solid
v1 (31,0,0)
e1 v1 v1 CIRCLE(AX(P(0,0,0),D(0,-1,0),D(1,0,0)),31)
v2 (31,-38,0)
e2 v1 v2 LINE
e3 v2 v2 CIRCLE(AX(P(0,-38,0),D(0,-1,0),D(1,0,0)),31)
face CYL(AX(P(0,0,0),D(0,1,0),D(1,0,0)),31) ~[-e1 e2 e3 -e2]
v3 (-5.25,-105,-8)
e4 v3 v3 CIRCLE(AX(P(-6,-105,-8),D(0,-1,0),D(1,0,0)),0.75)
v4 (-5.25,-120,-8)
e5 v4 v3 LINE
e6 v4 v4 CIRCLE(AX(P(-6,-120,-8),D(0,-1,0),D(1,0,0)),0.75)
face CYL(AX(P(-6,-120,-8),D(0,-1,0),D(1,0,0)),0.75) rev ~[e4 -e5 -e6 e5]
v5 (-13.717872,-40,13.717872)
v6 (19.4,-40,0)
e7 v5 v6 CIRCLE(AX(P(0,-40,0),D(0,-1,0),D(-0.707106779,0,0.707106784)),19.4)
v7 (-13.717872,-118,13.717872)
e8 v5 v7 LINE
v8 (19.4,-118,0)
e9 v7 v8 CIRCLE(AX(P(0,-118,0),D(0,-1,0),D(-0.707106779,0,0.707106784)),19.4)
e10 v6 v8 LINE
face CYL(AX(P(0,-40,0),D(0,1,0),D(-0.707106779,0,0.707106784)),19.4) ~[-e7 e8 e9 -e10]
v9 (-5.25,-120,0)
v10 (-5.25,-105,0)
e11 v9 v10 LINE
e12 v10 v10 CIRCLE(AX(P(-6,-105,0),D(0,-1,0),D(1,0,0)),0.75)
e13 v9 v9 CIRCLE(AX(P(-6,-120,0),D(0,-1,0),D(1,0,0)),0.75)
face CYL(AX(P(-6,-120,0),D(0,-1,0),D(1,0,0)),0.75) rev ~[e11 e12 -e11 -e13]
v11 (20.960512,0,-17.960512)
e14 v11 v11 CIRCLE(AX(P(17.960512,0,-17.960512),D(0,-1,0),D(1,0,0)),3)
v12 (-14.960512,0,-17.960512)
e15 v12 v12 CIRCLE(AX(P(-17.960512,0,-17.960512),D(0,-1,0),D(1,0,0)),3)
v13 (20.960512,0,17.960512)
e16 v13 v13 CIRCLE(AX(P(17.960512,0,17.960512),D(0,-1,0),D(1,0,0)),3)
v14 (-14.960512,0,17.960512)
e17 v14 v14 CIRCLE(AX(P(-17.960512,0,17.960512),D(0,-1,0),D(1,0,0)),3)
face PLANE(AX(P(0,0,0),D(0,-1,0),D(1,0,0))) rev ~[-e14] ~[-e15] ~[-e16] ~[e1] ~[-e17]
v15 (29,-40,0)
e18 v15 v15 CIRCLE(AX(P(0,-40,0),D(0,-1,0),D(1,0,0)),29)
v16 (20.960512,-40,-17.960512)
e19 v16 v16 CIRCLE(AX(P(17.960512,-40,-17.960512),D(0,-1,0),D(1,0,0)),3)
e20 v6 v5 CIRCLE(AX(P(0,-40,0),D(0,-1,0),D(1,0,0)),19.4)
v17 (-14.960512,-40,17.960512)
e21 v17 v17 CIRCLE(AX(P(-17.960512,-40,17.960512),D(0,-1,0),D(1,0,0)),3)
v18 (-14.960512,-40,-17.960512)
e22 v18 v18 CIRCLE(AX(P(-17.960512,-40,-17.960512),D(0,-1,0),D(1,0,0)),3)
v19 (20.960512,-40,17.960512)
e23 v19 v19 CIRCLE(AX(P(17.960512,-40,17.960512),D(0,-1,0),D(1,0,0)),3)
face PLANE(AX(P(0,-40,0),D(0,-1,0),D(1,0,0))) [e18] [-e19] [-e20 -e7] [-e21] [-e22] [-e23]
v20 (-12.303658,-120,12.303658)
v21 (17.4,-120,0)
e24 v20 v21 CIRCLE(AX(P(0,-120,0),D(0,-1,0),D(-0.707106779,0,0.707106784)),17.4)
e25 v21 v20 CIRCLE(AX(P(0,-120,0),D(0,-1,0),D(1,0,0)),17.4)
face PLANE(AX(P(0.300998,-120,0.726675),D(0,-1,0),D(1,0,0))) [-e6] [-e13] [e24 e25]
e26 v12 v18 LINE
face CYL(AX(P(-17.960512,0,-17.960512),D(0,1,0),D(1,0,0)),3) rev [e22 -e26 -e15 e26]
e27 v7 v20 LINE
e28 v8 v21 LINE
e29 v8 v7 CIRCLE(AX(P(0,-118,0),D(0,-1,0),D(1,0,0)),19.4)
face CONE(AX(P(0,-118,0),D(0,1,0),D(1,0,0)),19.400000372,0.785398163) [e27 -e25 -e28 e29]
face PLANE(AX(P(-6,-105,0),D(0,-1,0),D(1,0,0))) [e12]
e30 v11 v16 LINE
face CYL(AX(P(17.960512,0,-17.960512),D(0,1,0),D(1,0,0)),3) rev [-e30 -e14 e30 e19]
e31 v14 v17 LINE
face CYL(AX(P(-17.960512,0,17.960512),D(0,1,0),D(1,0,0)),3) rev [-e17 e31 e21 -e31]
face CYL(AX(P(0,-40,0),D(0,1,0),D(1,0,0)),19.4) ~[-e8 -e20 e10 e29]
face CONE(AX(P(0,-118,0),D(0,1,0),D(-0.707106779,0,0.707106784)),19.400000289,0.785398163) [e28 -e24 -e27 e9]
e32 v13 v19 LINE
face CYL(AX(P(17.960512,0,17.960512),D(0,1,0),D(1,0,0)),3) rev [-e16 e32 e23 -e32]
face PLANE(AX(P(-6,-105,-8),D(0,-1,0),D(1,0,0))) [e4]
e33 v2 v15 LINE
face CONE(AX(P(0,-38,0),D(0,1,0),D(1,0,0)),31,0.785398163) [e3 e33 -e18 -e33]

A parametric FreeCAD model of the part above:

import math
import FreeCAD as App
import Part
import Sketcher

V = App.Vector
Q = App.Units.Quantity


def edges_at(feature, points):
    """Names of the edges that pass closest to the given points."""
    edges = feature.Shape.Edges
    near = lambda p: min(range(len(edges)), key=lambda i: edges[i].distToShape(Part.Vertex(*p))[0])
    return sorted({f"Edge{near(p) + 1}" for p in points})

doc = App.newDocument("Part")
body = doc.addObject("PartDesign::Body", "Body")

sketch1 = doc.addObject("Sketcher::SketchObject", "Sketch")
body.addObject(sketch1)
sketch1.AttachmentSupport = (doc.XZ_Plane, [""])
sketch1.MapMode = "FlatFace"
sketch1.addGeometry(Part.Circle(V(0, 0, 0), V(0, 0, 1), 31), False)
sketch1.addGeometry(Part.Circle(V(-18, -18, 0), V(0, 0, 1), 3), False)
sketch1.addGeometry(Part.Circle(V(18, -18, 0), V(0, 0, 1), 3), False)
sketch1.addGeometry(Part.Circle(V(-18, 18, 0), V(0, 0, 1), 3), False)
sketch1.addGeometry(Part.Circle(V(18, 18, 0), V(0, 0, 1), 3), False)
sketch1.addConstraint(Sketcher.Constraint("Coincident", 0, 3, -1, 1))
sketch1.addConstraint(Sketcher.Constraint("Equal", 1, 2))
sketch1.addConstraint(Sketcher.Constraint("Equal", 2, 3))
sketch1.addConstraint(Sketcher.Constraint("Equal", 3, 4))
sketch1.addConstraint(Sketcher.Constraint("Symmetric", 2, 3, 3, 3, -1, 1))
sketch1.addConstraint(Sketcher.Constraint("Symmetric", 1, 3, 4, 3, -1, 1))
sketch1.addConstraint(Sketcher.Constraint("Symmetric", 1, 3, 2, 3, -2))
sketch1.addConstraint(Sketcher.Constraint("Diameter", 0, Q("62 mm")))
sketch1.addConstraint(Sketcher.Constraint("Diameter", 1, Q("6 mm")))
sketch1.addConstraint(Sketcher.Constraint("DistanceX", 1, 3, -1, 1, Q("17.960512 mm")))
sketch1.addConstraint(Sketcher.Constraint("DistanceY", 1, 3, -1, 1, Q("17.960512 mm")))
pad1 = doc.addObject("PartDesign::Pad", "Pad")
body.addObject(pad1)
pad1.Profile = sketch1
pad1.Length = 40

sketch2 = doc.addObject("Sketcher::SketchObject", "Sketch001")
body.addObject(sketch2)
sketch2.AttachmentSupport = (doc.XZ_Plane, [""])
sketch2.MapMode = "FlatFace"
sketch2.AttachmentOffset = App.Placement(V(0, 0, 40), App.Rotation())
sketch2.addGeometry(Part.ArcOfCircle(Part.Circle(V(0, 0, 0), V(0, 0, 1), 19), math.radians(0), math.radians(135)), False)
sketch2.addGeometry(Part.ArcOfCircle(Part.Circle(V(0, 0, 0), V(0, 0, 1), 19), math.radians(135), math.radians(360)), False)
sketch2.addConstraint(Sketcher.Constraint("Tangent", 0, 1, 1, 2))
sketch2.addConstraint(Sketcher.Constraint("Coincident", 1, 1, 0, 2))
sketch2.addConstraint(Sketcher.Constraint("Coincident", 0, 3, -1, 1))
sketch2.addConstraint(Sketcher.Constraint("PointOnObject", 0, 1, -1))
sketch2.addConstraint(Sketcher.Constraint("Radius", 0, Q("19.4 mm")))
sketch2.addConstraint(Sketcher.Constraint("DistanceX", 1, 1, -1, 1, Q("13.717872 mm")))
pad2 = doc.addObject("PartDesign::Pad", "Pad001")
body.addObject(pad2)
pad2.Profile = sketch2
pad2.Length = 80

sketch3 = doc.addObject("Sketcher::SketchObject", "Sketch002")
body.addObject(sketch3)
sketch3.AttachmentSupport = (doc.XZ_Plane, [""])
sketch3.MapMode = "FlatFace"
sketch3.AttachmentOffset = App.Placement(V(0, 0, 120), App.Rotation())
sketch3.addGeometry(Part.Circle(V(-6, 0, 0), V(0, 0, 1), 0.8), False)
sketch3.addGeometry(Part.Circle(V(-6, -8, 0), V(0, 0, 1), 0.8), False)
sketch3.addConstraint(Sketcher.Constraint("Equal", 0, 1))
sketch3.addConstraint(Sketcher.Constraint("PointOnObject", 0, 3, -1))
sketch3.addConstraint(Sketcher.Constraint("Vertical", 0, 3, 1, 3))
sketch3.addConstraint(Sketcher.Constraint("Diameter", 0, Q("1.5 mm")))
sketch3.addConstraint(Sketcher.Constraint("DistanceX", 0, 3, -1, 1, Q("6 mm")))
sketch3.addConstraint(Sketcher.Constraint("DistanceY", 1, 3, -1, 1, Q("8 mm")))
pocket1 = doc.addObject("PartDesign::Pocket", "Pocket")
body.addObject(pocket1)
pocket1.Profile = sketch3
pocket1.Length = 15
doc.recompute()

chamfer = doc.addObject("PartDesign::Chamfer", "Chamfer")
body.addObject(chamfer)
chamfer.Base = (pocket1, edges_at(pocket1, [(-7.424, -120, -17.923), (-31, -40, 0)]))
chamfer.Size = 2

doc.recompute()
